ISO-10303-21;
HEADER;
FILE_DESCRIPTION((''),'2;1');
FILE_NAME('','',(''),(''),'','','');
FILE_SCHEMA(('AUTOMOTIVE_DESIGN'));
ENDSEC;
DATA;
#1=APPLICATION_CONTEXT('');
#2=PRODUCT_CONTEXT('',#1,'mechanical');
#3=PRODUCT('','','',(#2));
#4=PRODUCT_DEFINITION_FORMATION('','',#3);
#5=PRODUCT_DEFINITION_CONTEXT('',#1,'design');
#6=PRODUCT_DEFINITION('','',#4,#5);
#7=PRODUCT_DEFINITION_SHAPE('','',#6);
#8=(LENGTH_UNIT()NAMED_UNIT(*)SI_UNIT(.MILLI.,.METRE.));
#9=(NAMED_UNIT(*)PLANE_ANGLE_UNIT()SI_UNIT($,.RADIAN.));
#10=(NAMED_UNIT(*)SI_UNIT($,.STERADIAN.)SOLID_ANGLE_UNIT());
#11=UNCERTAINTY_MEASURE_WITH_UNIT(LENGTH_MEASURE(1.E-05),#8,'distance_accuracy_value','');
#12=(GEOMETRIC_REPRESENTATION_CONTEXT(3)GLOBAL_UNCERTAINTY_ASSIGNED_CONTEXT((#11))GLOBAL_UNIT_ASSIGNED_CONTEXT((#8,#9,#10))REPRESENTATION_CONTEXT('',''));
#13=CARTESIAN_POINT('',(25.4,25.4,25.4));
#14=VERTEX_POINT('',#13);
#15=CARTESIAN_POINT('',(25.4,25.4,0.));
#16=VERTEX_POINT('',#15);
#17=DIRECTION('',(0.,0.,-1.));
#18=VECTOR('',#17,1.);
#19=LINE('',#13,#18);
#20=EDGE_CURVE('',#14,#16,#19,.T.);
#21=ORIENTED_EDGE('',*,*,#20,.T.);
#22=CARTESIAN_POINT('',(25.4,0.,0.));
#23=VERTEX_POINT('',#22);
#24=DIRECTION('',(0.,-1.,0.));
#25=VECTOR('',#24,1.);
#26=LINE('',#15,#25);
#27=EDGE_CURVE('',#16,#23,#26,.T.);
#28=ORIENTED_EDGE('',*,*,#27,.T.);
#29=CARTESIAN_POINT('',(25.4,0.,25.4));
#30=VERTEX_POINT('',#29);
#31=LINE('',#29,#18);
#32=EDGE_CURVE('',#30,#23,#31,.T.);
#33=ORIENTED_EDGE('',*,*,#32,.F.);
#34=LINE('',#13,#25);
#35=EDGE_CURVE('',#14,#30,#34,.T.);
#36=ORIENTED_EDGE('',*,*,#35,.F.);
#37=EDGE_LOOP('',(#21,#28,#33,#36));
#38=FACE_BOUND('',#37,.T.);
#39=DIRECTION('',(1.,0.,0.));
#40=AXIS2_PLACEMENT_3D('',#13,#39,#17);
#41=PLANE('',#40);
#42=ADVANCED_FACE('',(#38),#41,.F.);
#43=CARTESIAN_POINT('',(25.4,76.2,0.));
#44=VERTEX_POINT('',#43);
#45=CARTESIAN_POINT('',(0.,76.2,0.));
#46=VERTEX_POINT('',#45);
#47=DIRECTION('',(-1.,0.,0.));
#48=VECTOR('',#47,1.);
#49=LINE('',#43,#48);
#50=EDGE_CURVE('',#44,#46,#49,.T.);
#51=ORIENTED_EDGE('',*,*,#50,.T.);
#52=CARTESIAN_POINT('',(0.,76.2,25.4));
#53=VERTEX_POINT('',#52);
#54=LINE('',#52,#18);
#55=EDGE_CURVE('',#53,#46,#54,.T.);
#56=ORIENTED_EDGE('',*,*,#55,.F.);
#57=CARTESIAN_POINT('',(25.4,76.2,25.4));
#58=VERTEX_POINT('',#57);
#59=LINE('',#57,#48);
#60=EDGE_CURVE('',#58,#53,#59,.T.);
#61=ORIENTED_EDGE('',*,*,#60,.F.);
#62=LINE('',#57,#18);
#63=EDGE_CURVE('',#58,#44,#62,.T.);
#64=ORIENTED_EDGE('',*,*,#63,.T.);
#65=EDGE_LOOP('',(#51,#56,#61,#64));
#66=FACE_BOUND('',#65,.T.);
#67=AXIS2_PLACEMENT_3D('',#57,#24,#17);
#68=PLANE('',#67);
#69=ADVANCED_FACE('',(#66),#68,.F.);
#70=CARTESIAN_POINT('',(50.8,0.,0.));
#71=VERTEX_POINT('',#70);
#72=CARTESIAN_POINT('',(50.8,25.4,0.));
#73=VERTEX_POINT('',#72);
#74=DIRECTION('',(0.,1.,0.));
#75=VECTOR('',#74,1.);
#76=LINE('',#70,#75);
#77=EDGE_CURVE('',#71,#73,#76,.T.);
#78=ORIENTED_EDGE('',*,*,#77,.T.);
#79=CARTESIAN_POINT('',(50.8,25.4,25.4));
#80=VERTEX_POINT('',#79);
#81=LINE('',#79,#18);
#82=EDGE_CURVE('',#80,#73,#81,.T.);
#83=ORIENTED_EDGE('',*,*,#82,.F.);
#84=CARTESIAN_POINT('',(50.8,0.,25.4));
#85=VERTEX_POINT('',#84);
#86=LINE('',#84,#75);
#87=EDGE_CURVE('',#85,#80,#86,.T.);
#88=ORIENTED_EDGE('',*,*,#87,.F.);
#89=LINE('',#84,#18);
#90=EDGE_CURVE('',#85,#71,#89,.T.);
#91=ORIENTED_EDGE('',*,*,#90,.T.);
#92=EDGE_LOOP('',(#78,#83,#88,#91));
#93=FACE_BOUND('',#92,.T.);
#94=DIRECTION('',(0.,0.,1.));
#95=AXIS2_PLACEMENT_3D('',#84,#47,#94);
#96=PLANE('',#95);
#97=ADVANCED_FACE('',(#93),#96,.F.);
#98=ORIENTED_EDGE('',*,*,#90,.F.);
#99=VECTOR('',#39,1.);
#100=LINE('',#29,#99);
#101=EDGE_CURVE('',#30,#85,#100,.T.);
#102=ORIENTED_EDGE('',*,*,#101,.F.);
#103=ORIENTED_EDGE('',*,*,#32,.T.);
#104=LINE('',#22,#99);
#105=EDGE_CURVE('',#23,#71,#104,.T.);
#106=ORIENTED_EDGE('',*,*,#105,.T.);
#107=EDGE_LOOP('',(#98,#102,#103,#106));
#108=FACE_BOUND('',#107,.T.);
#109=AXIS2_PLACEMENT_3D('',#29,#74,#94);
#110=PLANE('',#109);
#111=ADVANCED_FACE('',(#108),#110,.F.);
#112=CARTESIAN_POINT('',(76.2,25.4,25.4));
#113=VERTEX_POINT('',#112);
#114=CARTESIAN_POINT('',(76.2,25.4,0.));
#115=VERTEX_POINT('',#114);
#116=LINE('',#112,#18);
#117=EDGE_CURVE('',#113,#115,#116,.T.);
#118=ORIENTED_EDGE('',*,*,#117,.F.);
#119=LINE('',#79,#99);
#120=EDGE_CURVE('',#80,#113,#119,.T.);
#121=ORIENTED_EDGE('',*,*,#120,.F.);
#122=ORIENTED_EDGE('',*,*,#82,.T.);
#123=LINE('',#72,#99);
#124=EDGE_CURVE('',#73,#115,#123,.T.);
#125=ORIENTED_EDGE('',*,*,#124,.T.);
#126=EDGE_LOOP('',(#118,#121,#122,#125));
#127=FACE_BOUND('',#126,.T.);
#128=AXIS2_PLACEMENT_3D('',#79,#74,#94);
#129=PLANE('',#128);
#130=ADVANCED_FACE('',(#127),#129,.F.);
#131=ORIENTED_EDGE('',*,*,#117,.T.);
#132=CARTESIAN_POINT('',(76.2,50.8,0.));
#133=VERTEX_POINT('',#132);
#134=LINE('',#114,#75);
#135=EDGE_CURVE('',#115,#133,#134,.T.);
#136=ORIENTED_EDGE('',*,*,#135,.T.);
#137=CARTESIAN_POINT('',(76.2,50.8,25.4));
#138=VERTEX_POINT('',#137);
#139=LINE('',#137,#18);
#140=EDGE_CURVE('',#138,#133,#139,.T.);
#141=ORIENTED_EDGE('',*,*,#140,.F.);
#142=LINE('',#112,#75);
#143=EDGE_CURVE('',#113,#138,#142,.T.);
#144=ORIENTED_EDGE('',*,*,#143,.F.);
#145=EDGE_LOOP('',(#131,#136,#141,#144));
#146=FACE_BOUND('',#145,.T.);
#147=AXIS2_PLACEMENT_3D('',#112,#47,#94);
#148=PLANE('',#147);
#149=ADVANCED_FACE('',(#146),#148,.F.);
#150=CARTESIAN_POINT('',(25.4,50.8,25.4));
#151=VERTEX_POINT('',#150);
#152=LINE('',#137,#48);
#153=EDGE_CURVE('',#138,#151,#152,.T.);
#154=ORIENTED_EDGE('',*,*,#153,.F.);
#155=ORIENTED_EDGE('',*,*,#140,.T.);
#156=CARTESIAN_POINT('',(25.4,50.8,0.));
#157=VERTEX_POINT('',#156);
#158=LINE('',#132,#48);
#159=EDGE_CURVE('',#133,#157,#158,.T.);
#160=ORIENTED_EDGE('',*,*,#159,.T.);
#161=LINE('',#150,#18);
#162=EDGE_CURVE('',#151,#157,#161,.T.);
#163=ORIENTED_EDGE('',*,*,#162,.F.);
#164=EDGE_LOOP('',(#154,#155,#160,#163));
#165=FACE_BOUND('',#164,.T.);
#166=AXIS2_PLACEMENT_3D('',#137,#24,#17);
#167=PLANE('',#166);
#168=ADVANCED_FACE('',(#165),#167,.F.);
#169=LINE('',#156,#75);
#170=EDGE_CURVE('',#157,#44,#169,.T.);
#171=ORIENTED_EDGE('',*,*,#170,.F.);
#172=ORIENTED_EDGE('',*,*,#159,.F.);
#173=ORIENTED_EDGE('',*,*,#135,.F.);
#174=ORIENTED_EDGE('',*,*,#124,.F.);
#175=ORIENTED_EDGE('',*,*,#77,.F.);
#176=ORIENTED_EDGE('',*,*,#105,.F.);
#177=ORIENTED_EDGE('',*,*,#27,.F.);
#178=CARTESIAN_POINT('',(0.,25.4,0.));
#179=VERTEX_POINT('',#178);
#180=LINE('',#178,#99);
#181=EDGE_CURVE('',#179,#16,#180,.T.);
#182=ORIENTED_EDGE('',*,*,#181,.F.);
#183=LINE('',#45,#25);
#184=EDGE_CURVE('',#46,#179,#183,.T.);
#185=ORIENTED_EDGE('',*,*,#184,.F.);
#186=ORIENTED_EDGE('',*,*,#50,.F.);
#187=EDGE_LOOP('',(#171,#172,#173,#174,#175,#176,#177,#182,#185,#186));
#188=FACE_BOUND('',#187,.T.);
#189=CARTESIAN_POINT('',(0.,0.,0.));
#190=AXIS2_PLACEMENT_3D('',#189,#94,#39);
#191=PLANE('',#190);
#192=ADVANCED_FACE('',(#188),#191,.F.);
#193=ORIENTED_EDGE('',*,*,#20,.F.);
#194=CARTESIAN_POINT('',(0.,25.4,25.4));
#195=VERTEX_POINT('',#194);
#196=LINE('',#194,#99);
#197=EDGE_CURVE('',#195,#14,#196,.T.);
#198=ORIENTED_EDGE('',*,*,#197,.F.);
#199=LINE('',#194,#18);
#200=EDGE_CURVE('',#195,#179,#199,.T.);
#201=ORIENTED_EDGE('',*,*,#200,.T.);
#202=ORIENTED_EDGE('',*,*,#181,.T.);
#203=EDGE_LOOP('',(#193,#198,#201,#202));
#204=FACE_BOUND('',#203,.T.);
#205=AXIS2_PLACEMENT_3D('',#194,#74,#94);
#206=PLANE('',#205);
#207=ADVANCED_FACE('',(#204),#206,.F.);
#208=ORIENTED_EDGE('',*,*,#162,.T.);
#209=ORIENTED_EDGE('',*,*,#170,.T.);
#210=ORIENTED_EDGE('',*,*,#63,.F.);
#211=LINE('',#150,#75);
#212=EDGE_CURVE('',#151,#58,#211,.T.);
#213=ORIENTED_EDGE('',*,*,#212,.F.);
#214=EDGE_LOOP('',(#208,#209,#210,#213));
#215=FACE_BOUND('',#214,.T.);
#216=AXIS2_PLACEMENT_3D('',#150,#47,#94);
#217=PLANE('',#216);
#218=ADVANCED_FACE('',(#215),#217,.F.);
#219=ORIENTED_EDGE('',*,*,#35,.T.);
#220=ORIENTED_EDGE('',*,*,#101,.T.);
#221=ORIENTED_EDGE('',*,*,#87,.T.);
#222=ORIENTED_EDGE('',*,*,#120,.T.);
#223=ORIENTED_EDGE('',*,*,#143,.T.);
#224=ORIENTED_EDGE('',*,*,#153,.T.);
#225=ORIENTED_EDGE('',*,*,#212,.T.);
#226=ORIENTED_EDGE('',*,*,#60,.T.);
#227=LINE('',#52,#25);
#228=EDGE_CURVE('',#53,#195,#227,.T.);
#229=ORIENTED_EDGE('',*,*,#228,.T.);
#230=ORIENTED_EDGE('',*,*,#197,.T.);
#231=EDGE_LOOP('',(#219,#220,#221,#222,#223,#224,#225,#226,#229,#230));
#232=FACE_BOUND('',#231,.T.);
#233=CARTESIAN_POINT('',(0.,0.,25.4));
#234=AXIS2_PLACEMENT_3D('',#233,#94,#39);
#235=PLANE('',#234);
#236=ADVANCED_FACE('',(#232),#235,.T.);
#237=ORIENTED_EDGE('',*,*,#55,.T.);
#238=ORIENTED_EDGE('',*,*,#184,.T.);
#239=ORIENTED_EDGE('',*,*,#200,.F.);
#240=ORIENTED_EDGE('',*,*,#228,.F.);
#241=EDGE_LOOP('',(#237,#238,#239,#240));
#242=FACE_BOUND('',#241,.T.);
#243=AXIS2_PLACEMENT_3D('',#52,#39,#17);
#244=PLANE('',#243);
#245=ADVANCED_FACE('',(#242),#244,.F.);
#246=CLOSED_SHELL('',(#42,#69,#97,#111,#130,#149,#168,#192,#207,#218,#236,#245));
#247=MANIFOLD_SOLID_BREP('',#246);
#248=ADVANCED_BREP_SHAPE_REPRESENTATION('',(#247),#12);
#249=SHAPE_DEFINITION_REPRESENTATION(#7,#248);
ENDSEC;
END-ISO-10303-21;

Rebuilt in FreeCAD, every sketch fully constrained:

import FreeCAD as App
import Part
import Sketcher
Q = App.Units.Quantity


def add_polygon(sketch, points):
    """Adds a closed chain of lines whose ends are joined by coincident constraints."""
    first, n = sketch.GeometryCount, len(points)
    for a, b in zip(points, points[1:] + points[:1]):
        sketch.addGeometry(Part.LineSegment(App.Vector(*a, 0), App.Vector(*b, 0)), False)
    for i in range(n):
        sketch.addConstraint(Sketcher.Constraint("Coincident", first + i, 2, first + (i + 1) % n, 1))

doc = App.newDocument("Part")
params = doc.addObject("Spreadsheet::Sheet", "Params")
for row, (alias, value) in enumerate([
    ("sketch1_width", "1 in"),
    ("pad1_length", "1 in"),
], start=1):
    params.set(f"A{row}", alias)
    params.set(f"B{row}", "=" + value)
    params.setAlias(f"B{row}", alias)

body = doc.addObject("PartDesign::Body", "Body")

sketch1 = body.newObject("Sketcher::SketchObject", "Sketch")
sketch1.AttachmentSupport = (doc.getObject("XY_Plane"), [""])
sketch1.MapMode = "FlatFace"
add_polygon(sketch1, [(51, 0), (51, 25), (76, 25), (76, 51), (25, 51), (25, 76), (0, 76), (0, 25), (25, 25), (25, 0)])
sketch1.addConstraint([
    Sketcher.Constraint("Vertical", 0),
    Sketcher.Constraint("Horizontal", 1),
    Sketcher.Constraint("Vertical", 2),
    Sketcher.Constraint("Horizontal", 3),
    Sketcher.Constraint("Vertical", 4),
    Sketcher.Constraint("Horizontal", 5),
    Sketcher.Constraint("Vertical", 6),
    Sketcher.Constraint("Horizontal", 7),
    Sketcher.Constraint("Vertical", 8),
    Sketcher.Constraint("Horizontal", 9),
    Sketcher.Constraint("PointOnObject", 5, 2, -2),
    Sketcher.Constraint("PointOnObject", 8, 2, -1),
    Sketcher.Constraint("Horizontal", 1, 2, 6, 2),
    Sketcher.Constraint("Vertical", 4, 2, 7, 2),
    Sketcher.Constraint("Equal", 1, 5),
    Sketcher.Constraint("Equal", 7, 9),
    Sketcher.Constraint("Equal", 9, 0),
    Sketcher.Constraint("Equal", 0, 2),
    Sketcher.Constraint("Equal", 2, 4),
    Sketcher.Constraint("DistanceX", 1, 1, 1, 2, Q("1 in")),
])
sketch1.setExpression("Constraints[29]", "Params.sketch1_width")
pad1 = body.newObject("PartDesign::Pad", "Pad")
pad1.Profile = sketch1
pad1.setExpression("Length", "Params.pad1_length")

doc.recompute()
